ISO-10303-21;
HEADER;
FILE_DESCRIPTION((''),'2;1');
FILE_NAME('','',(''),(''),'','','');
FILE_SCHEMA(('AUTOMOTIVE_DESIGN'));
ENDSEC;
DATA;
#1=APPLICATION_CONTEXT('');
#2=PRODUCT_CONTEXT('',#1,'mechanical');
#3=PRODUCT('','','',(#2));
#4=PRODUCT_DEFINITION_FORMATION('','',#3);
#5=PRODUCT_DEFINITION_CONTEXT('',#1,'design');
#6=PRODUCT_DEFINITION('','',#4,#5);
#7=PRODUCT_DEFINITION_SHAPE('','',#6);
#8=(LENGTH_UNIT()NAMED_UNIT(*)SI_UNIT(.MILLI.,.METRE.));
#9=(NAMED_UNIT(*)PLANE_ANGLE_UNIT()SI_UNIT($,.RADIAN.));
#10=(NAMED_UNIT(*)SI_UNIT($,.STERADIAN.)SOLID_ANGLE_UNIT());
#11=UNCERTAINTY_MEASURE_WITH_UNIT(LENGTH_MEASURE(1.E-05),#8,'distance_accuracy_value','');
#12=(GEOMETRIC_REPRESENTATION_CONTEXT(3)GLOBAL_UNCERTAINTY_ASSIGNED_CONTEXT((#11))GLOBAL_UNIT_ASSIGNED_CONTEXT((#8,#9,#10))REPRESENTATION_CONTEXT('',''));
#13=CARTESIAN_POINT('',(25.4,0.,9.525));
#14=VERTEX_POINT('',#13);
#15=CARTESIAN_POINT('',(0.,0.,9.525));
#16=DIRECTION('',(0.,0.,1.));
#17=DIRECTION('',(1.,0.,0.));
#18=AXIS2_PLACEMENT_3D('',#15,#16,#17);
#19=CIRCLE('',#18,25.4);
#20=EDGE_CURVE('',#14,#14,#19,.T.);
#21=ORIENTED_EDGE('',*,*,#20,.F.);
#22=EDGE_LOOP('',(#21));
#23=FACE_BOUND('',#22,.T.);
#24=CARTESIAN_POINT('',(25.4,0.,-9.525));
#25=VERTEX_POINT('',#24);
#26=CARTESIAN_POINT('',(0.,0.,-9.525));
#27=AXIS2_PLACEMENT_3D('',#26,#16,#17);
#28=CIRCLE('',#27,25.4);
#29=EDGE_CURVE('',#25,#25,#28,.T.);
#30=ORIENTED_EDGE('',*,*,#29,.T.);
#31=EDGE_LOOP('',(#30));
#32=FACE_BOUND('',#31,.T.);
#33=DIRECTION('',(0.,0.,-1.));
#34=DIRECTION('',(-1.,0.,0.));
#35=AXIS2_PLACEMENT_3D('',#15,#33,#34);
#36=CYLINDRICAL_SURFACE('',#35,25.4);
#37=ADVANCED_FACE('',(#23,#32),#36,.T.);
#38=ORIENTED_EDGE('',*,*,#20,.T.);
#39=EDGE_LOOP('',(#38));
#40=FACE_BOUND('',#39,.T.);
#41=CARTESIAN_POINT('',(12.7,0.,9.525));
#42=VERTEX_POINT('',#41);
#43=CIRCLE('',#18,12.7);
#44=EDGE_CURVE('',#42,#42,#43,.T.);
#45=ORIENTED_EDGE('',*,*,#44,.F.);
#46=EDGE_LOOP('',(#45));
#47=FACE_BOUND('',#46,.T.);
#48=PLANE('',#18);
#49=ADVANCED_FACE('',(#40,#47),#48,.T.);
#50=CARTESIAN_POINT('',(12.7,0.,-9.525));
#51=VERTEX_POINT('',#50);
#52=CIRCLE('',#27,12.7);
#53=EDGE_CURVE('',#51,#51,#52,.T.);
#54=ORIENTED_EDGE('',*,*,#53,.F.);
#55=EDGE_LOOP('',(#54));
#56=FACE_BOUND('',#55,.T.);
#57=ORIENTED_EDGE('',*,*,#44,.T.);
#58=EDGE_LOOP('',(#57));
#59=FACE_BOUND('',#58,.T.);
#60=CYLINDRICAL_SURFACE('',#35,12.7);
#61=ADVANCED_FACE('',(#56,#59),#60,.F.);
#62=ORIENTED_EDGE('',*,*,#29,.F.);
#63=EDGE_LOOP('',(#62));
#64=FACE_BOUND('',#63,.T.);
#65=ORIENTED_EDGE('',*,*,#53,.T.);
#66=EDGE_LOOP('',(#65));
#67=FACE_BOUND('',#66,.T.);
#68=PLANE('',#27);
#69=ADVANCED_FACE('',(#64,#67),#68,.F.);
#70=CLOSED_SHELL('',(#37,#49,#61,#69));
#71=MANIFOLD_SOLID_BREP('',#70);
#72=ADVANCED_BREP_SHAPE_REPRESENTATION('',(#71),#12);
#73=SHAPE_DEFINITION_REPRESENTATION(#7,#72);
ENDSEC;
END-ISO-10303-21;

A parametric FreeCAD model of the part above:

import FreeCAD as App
import Part
import Sketcher

V = App.Vector
Q = App.Units.Quantity

doc = App.newDocument("Part")
body = doc.addObject("PartDesign::Body", "Body")

# Sketch on XY plane
sketch1 = doc.addObject("Sketcher::SketchObject", "Sketch")
body.addObject(sketch1)
sketch1.AttachmentSupport = (doc.XY_Plane, [""])
sketch1.MapMode = "FlatFace"
sketch1.addGeometry(Part.Circle(V(0, 0, 0), V(0, 0, 1), 25), False)
sketch1.addGeometry(Part.Circle(V(0, 0, 0), V(0, 0, 1), 13), False)
sketch1.addConstraint(Sketcher.Constraint("Coincident", 0, 3, -1, 1))
sketch1.addConstraint(Sketcher.Constraint("Coincident", 1, 3, -1, 1))
sketch1.addConstraint(Sketcher.Constraint("Diameter", 0, Q("2 in")))
sketch1.addConstraint(Sketcher.Constraint("Diameter", 1, Q("1 in")))
pad1 = doc.addObject("PartDesign::Pad", "Pad")
body.addObject(pad1)
pad1.Profile = sketch1
pad1.Length = Q("0.75 in")
pad1.Midplane = True

doc.recompute()
